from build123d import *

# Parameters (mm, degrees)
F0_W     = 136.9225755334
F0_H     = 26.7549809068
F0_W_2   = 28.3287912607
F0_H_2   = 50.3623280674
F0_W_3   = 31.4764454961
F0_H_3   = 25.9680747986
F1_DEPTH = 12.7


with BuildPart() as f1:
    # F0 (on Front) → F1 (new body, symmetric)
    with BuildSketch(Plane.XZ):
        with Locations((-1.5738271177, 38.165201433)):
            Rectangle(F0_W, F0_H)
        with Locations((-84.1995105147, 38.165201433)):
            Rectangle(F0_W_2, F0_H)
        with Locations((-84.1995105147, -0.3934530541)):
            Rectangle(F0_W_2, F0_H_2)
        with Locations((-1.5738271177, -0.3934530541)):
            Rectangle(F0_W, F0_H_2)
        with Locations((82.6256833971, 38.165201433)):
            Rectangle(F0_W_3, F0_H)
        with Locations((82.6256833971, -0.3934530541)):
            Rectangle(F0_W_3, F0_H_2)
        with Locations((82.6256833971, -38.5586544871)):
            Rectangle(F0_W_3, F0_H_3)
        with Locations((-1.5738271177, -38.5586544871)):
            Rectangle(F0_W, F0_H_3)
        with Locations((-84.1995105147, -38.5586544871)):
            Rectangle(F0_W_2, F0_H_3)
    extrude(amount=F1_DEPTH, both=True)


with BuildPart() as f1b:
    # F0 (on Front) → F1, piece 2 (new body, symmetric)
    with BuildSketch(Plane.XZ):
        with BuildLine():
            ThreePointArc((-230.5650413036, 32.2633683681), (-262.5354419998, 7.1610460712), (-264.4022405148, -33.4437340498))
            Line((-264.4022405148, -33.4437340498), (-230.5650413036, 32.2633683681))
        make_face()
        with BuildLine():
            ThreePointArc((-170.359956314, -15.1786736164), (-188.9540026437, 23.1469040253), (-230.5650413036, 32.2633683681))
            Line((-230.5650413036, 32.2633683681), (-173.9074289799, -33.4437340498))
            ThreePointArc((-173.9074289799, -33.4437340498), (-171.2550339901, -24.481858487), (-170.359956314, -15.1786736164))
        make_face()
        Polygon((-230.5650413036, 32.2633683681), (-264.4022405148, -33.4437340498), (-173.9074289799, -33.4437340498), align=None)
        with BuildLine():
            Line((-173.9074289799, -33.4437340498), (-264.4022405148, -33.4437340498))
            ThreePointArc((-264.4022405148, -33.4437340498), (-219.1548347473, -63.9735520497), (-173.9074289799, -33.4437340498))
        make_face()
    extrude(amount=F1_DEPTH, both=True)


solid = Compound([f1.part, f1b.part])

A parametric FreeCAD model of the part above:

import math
import FreeCAD as App
import Part
import Sketcher

V = App.Vector
Q = App.Units.Quantity

doc = App.newDocument("Part")
params = doc.addObject("Spreadsheet::Sheet", "Params")
for row, (alias, value) in enumerate([
    ("pad1_length", "1 in"),
    ("pad2_length", "1 in"),
], start=1):
    params.set(f"A{row}", alias)
    params.set(f"B{row}", "=" + value)
    params.setAlias(f"B{row}", alias)

body = doc.addObject("PartDesign::Body", "Body")

sketch1 = body.newObject("Sketcher::SketchObject", "Sketch")
sketch1.AttachmentSupport = (doc.getObject("XZ_Plane"), [""])
sketch1.MapMode = "FlatFace"
sketch1.addGeometry(Part.LineSegment(V(-98, 52, 0), V(-98, -52, 0)), False)
sketch1.addGeometry(Part.LineSegment(V(-98, -52, 0), V(98, -52, 0)), False)
sketch1.addGeometry(Part.LineSegment(V(98, -52, 0), V(98, 52, 0)), False)
sketch1.addGeometry(Part.LineSegment(V(98, 52, 0), V(-98, 52, 0)), False)
sketch1.addConstraint(Sketcher.Constraint("Coincident", 0, 2, 1, 1))
sketch1.addConstraint(Sketcher.Constraint("Coincident", 1, 2, 2, 1))
sketch1.addConstraint(Sketcher.Constraint("Coincident", 2, 2, 3, 1))
sketch1.addConstraint(Sketcher.Constraint("Coincident", 3, 2, 0, 1))
sketch1.addConstraint(Sketcher.Constraint("Vertical", 0))
sketch1.addConstraint(Sketcher.Constraint("Horizontal", 1))
sketch1.addConstraint(Sketcher.Constraint("Vertical", 2))
sketch1.addConstraint(Sketcher.Constraint("Horizontal", 3))
sketch1.addConstraint(Sketcher.Constraint("Symmetric", 0, 2, 2, 2, -1, 1))
sketch1.addConstraint(Sketcher.Constraint("DistanceX", 1, 1, 1, 2, Q("196.727812 mm")))
sketch1.addConstraint(Sketcher.Constraint("DistanceY", 0, 2, 0, 1, Q("103.085384 mm")))
pad1 = body.newObject("PartDesign::Pad", "Pad")
pad1.Profile = sketch1
pad1.setExpression("Length", "Params.pad1_length")
pad1.Midplane = True
body2 = doc.addObject("PartDesign::Body", "Body001")

sketch2 = body2.newObject("Sketcher::SketchObject", "Sketch001")
sketch2.AttachmentSupport = (doc.getObject("XZ_Plane001"), [""])
sketch2.MapMode = "FlatFace"
sketch2.addGeometry(Part.ArcOfCircle(Part.Circle(V(-219, -15, 0), V(0, 0, 1), 49), math.radians(-22), math.radians(0)), False)
sketch2.addGeometry(Part.ArcOfCircle(Part.Circle(V(-219, -15, 0), V(0, 0, 1), 49), math.radians(0), math.radians(338)), False)
sketch2.addConstraint(Sketcher.Constraint("Tangent", 0, 1, 1, 2))
sketch2.addConstraint(Sketcher.Constraint("Coincident", 1, 1, 0, 2))
sketch2.addConstraint(Sketcher.Constraint("Horizontal", 0, 3, 1, 1))
sketch2.addConstraint(Sketcher.Constraint("Radius", 0, Q("48.794878 mm")))
sketch2.addConstraint(Sketcher.Constraint("DistanceX", 0, 1, -1, 1, Q("173.907429 mm")))
sketch2.addConstraint(Sketcher.Constraint("DistanceY", 0, 1, 1, 3, Q("18.26506 mm")))
sketch2.addConstraint(Sketcher.Constraint("DistanceY", 0, 3, -1, 1, Q("15.178674 mm")))
pad2 = body2.newObject("PartDesign::Pad", "Pad001")
pad2.Profile = sketch2
pad2.setExpression("Length", "Params.pad2_length")
pad2.Midplane = True

doc.recompute()
